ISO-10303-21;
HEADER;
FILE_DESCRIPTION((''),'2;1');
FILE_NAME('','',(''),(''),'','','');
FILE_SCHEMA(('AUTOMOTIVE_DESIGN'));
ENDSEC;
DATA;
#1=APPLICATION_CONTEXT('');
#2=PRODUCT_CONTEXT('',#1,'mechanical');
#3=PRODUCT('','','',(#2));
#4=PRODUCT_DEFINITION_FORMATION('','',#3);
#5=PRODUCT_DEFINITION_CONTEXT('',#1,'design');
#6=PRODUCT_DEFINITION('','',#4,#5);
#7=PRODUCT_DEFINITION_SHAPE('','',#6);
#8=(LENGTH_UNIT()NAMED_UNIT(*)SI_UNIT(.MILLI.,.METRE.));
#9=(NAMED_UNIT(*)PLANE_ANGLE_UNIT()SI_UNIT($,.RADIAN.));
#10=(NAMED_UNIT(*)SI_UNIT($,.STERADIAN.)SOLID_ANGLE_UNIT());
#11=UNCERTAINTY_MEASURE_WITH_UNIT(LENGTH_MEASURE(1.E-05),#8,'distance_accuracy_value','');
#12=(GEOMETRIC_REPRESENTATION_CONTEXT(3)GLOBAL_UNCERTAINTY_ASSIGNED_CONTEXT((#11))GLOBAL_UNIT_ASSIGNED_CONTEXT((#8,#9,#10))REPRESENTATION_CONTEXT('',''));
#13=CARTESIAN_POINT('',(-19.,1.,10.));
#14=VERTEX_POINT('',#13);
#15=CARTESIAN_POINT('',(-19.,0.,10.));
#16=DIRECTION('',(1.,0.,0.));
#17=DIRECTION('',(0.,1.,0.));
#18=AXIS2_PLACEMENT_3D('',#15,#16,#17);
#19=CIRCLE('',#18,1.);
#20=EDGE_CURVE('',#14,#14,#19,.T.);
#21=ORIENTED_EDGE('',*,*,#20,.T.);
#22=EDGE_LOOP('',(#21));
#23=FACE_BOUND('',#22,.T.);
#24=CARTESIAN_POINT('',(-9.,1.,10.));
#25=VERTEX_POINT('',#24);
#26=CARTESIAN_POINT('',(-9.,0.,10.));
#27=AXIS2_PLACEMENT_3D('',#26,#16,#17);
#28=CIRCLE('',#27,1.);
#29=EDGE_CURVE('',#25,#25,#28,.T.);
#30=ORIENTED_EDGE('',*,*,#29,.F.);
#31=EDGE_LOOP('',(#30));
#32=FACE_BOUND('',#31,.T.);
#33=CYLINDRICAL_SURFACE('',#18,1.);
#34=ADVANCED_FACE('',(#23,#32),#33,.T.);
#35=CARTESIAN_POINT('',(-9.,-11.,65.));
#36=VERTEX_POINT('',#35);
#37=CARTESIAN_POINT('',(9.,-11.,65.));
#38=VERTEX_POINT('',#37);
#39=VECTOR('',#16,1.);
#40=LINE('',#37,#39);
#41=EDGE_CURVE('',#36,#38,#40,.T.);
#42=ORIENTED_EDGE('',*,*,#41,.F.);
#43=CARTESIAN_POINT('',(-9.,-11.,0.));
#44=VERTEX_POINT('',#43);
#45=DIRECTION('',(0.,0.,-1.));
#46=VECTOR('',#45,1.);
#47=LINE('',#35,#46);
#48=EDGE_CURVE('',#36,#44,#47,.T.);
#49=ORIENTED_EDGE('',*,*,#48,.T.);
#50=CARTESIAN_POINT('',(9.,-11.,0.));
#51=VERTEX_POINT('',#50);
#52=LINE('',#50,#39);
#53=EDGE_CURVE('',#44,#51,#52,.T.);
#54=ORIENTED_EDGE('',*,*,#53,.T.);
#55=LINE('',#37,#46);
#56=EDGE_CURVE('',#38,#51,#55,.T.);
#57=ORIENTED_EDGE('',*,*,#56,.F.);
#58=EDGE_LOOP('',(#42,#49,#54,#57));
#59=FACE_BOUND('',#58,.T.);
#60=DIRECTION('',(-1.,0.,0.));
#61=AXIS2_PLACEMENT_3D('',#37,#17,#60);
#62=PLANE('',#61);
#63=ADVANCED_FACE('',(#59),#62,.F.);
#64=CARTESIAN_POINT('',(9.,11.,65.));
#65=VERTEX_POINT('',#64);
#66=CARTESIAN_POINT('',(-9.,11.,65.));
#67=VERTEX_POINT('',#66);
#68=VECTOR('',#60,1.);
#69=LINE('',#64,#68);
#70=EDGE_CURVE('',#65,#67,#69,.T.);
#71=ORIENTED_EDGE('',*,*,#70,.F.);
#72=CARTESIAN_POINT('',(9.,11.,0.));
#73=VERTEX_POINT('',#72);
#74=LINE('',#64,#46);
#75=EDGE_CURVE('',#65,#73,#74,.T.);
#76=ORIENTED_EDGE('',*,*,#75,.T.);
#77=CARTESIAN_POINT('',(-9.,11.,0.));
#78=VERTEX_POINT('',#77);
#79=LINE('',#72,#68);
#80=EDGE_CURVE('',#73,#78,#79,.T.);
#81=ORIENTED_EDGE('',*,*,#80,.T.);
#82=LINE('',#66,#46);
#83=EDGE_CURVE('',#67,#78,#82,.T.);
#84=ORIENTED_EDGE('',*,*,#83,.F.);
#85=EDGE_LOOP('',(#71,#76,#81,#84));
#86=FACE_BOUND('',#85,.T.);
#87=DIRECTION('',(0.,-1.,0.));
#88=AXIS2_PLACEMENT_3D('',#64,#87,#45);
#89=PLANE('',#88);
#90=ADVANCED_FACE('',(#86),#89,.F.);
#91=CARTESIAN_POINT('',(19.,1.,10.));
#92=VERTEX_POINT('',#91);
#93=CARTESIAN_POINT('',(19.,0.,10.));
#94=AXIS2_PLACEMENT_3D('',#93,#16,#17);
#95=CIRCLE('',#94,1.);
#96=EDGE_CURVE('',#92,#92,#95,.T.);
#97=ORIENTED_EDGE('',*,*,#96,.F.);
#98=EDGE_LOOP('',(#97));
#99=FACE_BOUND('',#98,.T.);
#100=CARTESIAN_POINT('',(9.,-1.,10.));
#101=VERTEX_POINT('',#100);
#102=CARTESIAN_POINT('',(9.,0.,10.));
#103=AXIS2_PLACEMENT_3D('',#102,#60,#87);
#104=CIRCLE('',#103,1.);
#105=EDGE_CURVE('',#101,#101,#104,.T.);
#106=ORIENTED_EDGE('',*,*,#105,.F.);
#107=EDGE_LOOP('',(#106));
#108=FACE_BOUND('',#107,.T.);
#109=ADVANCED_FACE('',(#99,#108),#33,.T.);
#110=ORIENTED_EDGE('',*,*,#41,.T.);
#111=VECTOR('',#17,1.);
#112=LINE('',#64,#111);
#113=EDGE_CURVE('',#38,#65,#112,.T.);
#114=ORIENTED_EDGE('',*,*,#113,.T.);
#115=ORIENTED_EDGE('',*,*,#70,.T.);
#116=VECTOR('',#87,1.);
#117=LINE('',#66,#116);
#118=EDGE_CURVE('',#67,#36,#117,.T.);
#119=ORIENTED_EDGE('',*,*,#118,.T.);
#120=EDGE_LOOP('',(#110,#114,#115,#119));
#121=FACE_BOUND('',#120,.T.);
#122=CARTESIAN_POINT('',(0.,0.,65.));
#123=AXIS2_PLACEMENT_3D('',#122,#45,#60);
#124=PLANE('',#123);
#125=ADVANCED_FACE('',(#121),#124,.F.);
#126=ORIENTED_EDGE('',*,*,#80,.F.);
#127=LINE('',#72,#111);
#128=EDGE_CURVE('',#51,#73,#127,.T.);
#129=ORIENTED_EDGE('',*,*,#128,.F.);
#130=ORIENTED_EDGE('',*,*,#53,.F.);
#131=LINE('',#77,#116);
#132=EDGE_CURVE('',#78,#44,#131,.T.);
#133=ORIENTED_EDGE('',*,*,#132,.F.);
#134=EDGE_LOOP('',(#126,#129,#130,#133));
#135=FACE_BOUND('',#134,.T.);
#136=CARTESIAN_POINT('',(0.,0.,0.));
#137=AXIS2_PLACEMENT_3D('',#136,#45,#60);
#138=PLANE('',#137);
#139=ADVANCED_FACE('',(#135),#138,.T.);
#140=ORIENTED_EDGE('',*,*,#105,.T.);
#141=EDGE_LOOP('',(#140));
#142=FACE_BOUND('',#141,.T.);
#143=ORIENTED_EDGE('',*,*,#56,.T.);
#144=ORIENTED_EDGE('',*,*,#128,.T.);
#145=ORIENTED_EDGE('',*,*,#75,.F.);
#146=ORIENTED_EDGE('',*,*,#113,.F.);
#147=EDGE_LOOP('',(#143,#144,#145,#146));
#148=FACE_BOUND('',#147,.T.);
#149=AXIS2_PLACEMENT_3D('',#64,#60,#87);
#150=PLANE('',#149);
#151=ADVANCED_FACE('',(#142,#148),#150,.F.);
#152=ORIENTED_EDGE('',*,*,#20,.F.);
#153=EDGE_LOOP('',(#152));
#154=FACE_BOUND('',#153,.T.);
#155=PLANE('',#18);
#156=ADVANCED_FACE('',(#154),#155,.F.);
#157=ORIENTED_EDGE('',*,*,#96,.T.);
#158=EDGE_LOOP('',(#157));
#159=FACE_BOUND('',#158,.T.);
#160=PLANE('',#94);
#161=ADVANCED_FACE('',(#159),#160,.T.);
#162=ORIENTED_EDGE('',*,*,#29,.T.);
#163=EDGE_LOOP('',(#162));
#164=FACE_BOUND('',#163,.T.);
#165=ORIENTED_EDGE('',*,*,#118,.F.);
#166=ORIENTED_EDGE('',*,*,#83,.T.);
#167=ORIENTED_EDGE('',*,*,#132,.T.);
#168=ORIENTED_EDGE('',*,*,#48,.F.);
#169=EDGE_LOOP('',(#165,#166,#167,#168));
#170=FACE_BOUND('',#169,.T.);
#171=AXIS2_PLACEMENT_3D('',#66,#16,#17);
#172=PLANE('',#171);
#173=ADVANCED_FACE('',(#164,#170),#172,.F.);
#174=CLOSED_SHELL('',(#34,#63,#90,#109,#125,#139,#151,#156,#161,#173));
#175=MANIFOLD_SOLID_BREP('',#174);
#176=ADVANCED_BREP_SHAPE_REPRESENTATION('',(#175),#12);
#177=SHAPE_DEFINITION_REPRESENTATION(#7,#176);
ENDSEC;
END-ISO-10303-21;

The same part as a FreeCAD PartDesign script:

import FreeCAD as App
import Part
import Sketcher
Q = App.Units.Quantity

doc = App.newDocument("Part")
body = doc.addObject("PartDesign::Body", "Body")

# Sketch on XY plane
sketch1 = body.newObject("Sketcher::SketchObject", "Sketch")
sketch1.AttachmentSupport = (doc.getObject("XY_Plane"), [""])
sketch1.MapMode = "FlatFace"
sketch1.addGeometry([
    Part.LineSegment(App.Vector(-9, 11, 0), App.Vector(-9, -11, 0)),
    Part.LineSegment(App.Vector(-9, -11, 0), App.Vector(9, -11, 0)),
    Part.LineSegment(App.Vector(9, -11, 0), App.Vector(9, 11, 0)),
    Part.LineSegment(App.Vector(9, 11, 0), App.Vector(-9, 11, 0)),
], False)
sketch1.addConstraint([
    Sketcher.Constraint("Coincident", 0, 2, 1, 1),
    Sketcher.Constraint("Coincident", 1, 2, 2, 1),
    Sketcher.Constraint("Coincident", 2, 2, 3, 1),
    Sketcher.Constraint("Coincident", 3, 2, 0, 1),
    Sketcher.Constraint("Vertical", 0),
    Sketcher.Constraint("Horizontal", 1),
    Sketcher.Constraint("Vertical", 2),
    Sketcher.Constraint("Horizontal", 3),
    Sketcher.Constraint("Symmetric", 0, 2, 2, 2, -1, 1),
    Sketcher.Constraint("DistanceX", 1, 1, 1, 2, Q("18 mm")),
    Sketcher.Constraint("DistanceY", 0, 2, 0, 1, Q("22 mm")),
])
pad1 = body.newObject("PartDesign::Pad", "Pad")
pad1.Profile = sketch1
pad1.Length = 65

# Sketch on YZ plane
sketch2 = body.newObject("Sketcher::SketchObject", "Sketch001")
sketch2.AttachmentSupport = (doc.getObject("YZ_Plane"), [""])
sketch2.MapMode = "FlatFace"
sketch2.AttachmentOffset = App.Placement(App.Vector(0, 0, 9), App.Rotation())
sketch2.addGeometry(Part.Circle(App.Vector(0, 10, 0), App.Vector(0, 0, 1), 1), False)
sketch2.addConstraint([
    Sketcher.Constraint("PointOnObject", 0, 3, -2),
    Sketcher.Constraint("Diameter", 0, Q("2 mm")),
    Sketcher.Constraint("DistanceY", -1, 1, 0, 3, Q("10 mm")),
])
pad2 = body.newObject("PartDesign::Pad", "Pad001")
pad2.Profile = sketch2
pad2.Type = "TwoLengths"
pad2.Length = 10
pad2.Length2 = 28

doc.recompute()
